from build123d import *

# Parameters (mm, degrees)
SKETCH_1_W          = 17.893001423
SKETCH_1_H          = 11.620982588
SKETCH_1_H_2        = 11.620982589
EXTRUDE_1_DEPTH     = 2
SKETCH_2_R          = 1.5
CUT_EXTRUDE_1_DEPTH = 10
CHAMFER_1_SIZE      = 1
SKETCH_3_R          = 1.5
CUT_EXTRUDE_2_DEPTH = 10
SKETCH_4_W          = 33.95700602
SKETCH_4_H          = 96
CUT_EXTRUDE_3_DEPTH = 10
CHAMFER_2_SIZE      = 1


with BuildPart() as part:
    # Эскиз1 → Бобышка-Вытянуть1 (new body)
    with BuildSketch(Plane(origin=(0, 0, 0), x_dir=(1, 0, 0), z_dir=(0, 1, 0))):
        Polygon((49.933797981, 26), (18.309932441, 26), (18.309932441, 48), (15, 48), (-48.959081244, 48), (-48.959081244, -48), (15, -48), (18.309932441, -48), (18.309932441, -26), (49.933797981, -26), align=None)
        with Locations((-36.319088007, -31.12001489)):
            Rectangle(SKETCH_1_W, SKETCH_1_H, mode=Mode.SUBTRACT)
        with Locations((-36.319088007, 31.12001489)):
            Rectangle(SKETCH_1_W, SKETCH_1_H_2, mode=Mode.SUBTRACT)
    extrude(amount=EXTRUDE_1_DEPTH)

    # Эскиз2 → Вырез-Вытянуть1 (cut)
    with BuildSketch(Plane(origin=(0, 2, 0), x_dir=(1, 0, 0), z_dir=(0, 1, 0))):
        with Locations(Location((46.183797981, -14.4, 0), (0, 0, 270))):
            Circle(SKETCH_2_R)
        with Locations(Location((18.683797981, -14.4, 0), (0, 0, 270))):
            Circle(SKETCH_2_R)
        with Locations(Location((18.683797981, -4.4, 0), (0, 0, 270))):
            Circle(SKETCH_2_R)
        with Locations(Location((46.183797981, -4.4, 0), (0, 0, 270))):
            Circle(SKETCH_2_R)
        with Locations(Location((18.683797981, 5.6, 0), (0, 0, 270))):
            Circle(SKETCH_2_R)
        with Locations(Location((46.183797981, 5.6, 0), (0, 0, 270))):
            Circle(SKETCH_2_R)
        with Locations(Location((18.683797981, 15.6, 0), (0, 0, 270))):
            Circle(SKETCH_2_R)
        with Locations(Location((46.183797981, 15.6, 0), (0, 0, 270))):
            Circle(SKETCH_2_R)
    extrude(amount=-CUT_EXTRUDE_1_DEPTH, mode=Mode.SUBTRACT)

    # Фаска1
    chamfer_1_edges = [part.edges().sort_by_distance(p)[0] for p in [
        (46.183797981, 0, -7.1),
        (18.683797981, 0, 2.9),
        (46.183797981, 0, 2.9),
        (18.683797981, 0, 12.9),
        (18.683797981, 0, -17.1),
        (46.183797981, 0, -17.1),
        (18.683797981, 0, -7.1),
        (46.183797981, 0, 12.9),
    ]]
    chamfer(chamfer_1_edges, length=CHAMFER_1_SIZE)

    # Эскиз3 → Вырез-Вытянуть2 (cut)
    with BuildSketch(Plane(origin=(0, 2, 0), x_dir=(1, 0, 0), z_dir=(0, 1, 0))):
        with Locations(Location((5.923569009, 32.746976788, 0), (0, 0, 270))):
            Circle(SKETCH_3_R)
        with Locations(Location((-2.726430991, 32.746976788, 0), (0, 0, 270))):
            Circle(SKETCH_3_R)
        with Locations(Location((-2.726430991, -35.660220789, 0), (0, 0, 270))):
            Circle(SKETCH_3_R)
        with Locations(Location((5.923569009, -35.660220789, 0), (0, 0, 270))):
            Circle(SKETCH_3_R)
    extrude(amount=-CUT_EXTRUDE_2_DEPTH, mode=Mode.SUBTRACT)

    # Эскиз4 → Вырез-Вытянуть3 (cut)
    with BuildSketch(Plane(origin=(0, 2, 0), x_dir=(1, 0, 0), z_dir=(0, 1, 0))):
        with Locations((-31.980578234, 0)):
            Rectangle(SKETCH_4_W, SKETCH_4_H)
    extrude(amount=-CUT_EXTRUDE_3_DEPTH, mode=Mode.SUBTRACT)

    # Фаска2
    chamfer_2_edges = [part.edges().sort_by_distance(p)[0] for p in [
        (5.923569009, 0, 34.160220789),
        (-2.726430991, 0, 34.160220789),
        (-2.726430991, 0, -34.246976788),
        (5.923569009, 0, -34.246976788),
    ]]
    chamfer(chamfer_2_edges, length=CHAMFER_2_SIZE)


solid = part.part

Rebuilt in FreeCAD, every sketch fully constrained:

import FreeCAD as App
import Part
import Sketcher


def edges_at(feature, points):
    """Names of the edges that pass closest to the given points."""
    edges = feature.Shape.Edges
    near = lambda p: min(range(len(edges)), key=lambda i: edges[i].distToShape(Part.Vertex(*p))[0])
    return sorted({f"Edge{near(p) + 1}" for p in points})

doc = App.newDocument("Part")
body = doc.addObject("PartDesign::Body", "Body")

# Sketch on XZ plane
sketch1 = body.newObject("Sketcher::SketchObject", "Sketch")
sketch1.AttachmentSupport = (doc.getObject("XZ_Plane"), [""])
sketch1.MapMode = "FlatFace"
sketch1.addGeometry(Part.LineSegment(App.Vector(50, -26, 0), App.Vector(18, -26, 0)), False)
sketch1.addGeometry(Part.LineSegment(App.Vector(18, -26, 0), App.Vector(18, -48, 0)), False)
sketch1.addGeometry(Part.LineSegment(App.Vector(18, -48, 0), App.Vector(-49, -48, 0)), False)
sketch1.addGeometry(Part.LineSegment(App.Vector(-49, -48, 0), App.Vector(-49, 48, 0)), False)
sketch1.addGeometry(Part.LineSegment(App.Vector(-49, 48, 0), App.Vector(18, 48, 0)), False)
sketch1.addGeometry(Part.LineSegment(App.Vector(18, 48, 0), App.Vector(18, 26, 0)), False)
sketch1.addGeometry(Part.LineSegment(App.Vector(18, 26, 0), App.Vector(50, 26, 0)), False)
sketch1.addGeometry(Part.LineSegment(App.Vector(50, 26, 0), App.Vector(50, -26, 0)), False)
sketch1.addGeometry(Part.LineSegment(App.Vector(-27, 37, 0), App.Vector(-45, 37, 0)), False)
sketch1.addGeometry(Part.LineSegment(App.Vector(-45, 37, 0), App.Vector(-45, 25, 0)), False)
sketch1.addGeometry(Part.LineSegment(App.Vector(-45, 25, 0), App.Vector(-27, 25, 0)), False)
sketch1.addGeometry(Part.LineSegment(App.Vector(-27, 25, 0), App.Vector(-27, 37, 0)), False)
sketch1.addGeometry(Part.LineSegment(App.Vector(-27, -25, 0), App.Vector(-45, -25, 0)), False)
sketch1.addGeometry(Part.LineSegment(App.Vector(-45, -25, 0), App.Vector(-45, -37, 0)), False)
sketch1.addGeometry(Part.LineSegment(App.Vector(-45, -37, 0), App.Vector(-27, -37, 0)), False)
sketch1.addGeometry(Part.LineSegment(App.Vector(-27, -37, 0), App.Vector(-27, -25, 0)), False)
sketch1.addConstraint(Sketcher.Constraint("Coincident", 0, 2, 1, 1))
sketch1.addConstraint(Sketcher.Constraint("Coincident", 1, 2, 2, 1))
sketch1.addConstraint(Sketcher.Constraint("Coincident", 2, 2, 3, 1))
sketch1.addConstraint(Sketcher.Constraint("Coincident", 3, 2, 4, 1))
sketch1.addConstraint(Sketcher.Constraint("Coincident", 4, 2, 5, 1))
sketch1.addConstraint(Sketcher.Constraint("Coincident", 5, 2, 6, 1))
sketch1.addConstraint(Sketcher.Constraint("Coincident", 6, 2, 7, 1))
sketch1.addConstraint(Sketcher.Constraint("Coincident", 7, 2, 0, 1))
sketch1.addConstraint(Sketcher.Constraint("Coincident", 8, 2, 9, 1))
sketch1.addConstraint(Sketcher.Constraint("Coincident", 9, 2, 10, 1))
sketch1.addConstraint(Sketcher.Constraint("Coincident", 10, 2, 11, 1))
sketch1.addConstraint(Sketcher.Constraint("Coincident", 11, 2, 8, 1))
sketch1.addConstraint(Sketcher.Constraint("Coincident", 12, 2, 13, 1))
sketch1.addConstraint(Sketcher.Constraint("Coincident", 13, 2, 14, 1))
sketch1.addConstraint(Sketcher.Constraint("Coincident", 14, 2, 15, 1))
sketch1.addConstraint(Sketcher.Constraint("Coincident", 15, 2, 12, 1))
sketch1.addConstraint(Sketcher.Constraint("Horizontal", 0))
sketch1.addConstraint(Sketcher.Constraint("Vertical", 1))
sketch1.addConstraint(Sketcher.Constraint("Horizontal", 2))
sketch1.addConstraint(Sketcher.Constraint("Vertical", 3))
sketch1.addConstraint(Sketcher.Constraint("Horizontal", 4))
sketch1.addConstraint(Sketcher.Constraint("Vertical", 5))
sketch1.addConstraint(Sketcher.Constraint("Horizontal", 6))
sketch1.addConstraint(Sketcher.Constraint("Vertical", 7))
sketch1.addConstraint(Sketcher.Constraint("Horizontal", 8))
sketch1.addConstraint(Sketcher.Constraint("Vertical", 9))
sketch1.addConstraint(Sketcher.Constraint("Horizontal", 10))
sketch1.addConstraint(Sketcher.Constraint("Vertical", 11))
sketch1.addConstraint(Sketcher.Constraint("Horizontal", 12))
sketch1.addConstraint(Sketcher.Constraint("Vertical", 13))
sketch1.addConstraint(Sketcher.Constraint("Horizontal", 14))
sketch1.addConstraint(Sketcher.Constraint("Vertical", 15))
sketch1.addConstraint(Sketcher.Constraint("Symmetric", 1, 2, 4, 2, -1))
sketch1.addConstraint(Sketcher.Constraint("Symmetric", 9, 2, 12, 2, -1))
sketch1.addConstraint(Sketcher.Constraint("Symmetric", 11, 2, 14, 2, -1))
sketch1.addConstraint(Sketcher.Constraint("Equal", 1, 5))
sketch1.addConstraint(Sketcher.Constraint("DistanceY", 1, 2, 1, 1, 22.0))
sketch1.addConstraint(Sketcher.Constraint("DistanceY", 3, 1, 3, 2, 96.0))
sketch1.addConstraint(Sketcher.Constraint("DistanceX", 8, 2, 8, 1, 17.893001))
sketch1.addConstraint(Sketcher.Constraint("DistanceX", 0, 2, 0, 1, 31.623866))
sketch1.addConstraint(Sketcher.Constraint("DistanceX", 2, 2, 2, 1, 67.269014))
sketch1.addConstraint(Sketcher.Constraint("DistanceY", 9, 2, 9, 1, 11.620983))
sketch1.addConstraint(Sketcher.Constraint("DistanceX", 2, 2, -1, 1, 48.959081))
sketch1.addConstraint(Sketcher.Constraint("DistanceX", 8, 2, -1, 1, 45.265589))
sketch1.addConstraint(Sketcher.Constraint("DistanceY", 12, 2, 8, 2, 62.24003))
pad1 = body.newObject("PartDesign::Pad", "Pad")
pad1.Profile = sketch1
pad1.Length = 2
pad1.Reversed = True

# Sketch on XZ plane
sketch2 = body.newObject("Sketcher::SketchObject", "Sketch001")
sketch2.AttachmentSupport = (doc.getObject("XZ_Plane"), [""])
sketch2.MapMode = "FlatFace"
sketch2.AttachmentOffset = App.Placement(App.Vector(0, 0, -2), App.Rotation())
sketch2.addGeometry(Part.Circle(App.Vector(46.2, 14.4, 0), App.Vector(0, 0, 1), 1.5), False)
sketch2.addGeometry(Part.Circle(App.Vector(18.7, 14.4, 0), App.Vector(0, 0, 1), 1.5), False)
sketch2.addGeometry(Part.Circle(App.Vector(18.7, 4.4, 0), App.Vector(0, 0, 1), 1.5), False)
sketch2.addGeometry(Part.Circle(App.Vector(46.2, 4.4, 0), App.Vector(0, 0, 1), 1.5), False)
sketch2.addGeometry(Part.Circle(App.Vector(18.7, -5.6, 0), App.Vector(0, 0, 1), 1.5), False)
sketch2.addGeometry(Part.Circle(App.Vector(46.2, -5.6, 0), App.Vector(0, 0, 1), 1.5), False)
sketch2.addGeometry(Part.Circle(App.Vector(18.7, -15.6, 0), App.Vector(0, 0, 1), 1.5), False)
sketch2.addGeometry(Part.Circle(App.Vector(46.2, -15.6, 0), App.Vector(0, 0, 1), 1.5), False)
sketch2.addConstraint(Sketcher.Constraint("Equal", 0, 1))
sketch2.addConstraint(Sketcher.Constraint("Equal", 1, 2))
sketch2.addConstraint(Sketcher.Constraint("Equal", 2, 3))
sketch2.addConstraint(Sketcher.Constraint("Equal", 3, 4))
sketch2.addConstraint(Sketcher.Constraint("Equal", 4, 5))
sketch2.addConstraint(Sketcher.Constraint("Equal", 5, 6))
sketch2.addConstraint(Sketcher.Constraint("Equal", 6, 7))
sketch2.addConstraint(Sketcher.Constraint("Horizontal", 0, 3, 1, 3))
sketch2.addConstraint(Sketcher.Constraint("Horizontal", 2, 3, 3, 3))
sketch2.addConstraint(Sketcher.Constraint("Horizontal", 4, 3, 5, 3))
sketch2.addConstraint(Sketcher.Constraint("Horizontal", 6, 3, 7, 3))
sketch2.addConstraint(Sketcher.Constraint("Vertical", 1, 3, 2, 3))
sketch2.addConstraint(Sketcher.Constraint("Vertical", 0, 3, 3, 3))
sketch2.addConstraint(Sketcher.Constraint("Vertical", 2, 3, 4, 3))
sketch2.addConstraint(Sketcher.Constraint("Vertical", 3, 3, 5, 3))
sketch2.addConstraint(Sketcher.Constraint("Vertical", 4, 3, 6, 3))
sketch2.addConstraint(Sketcher.Constraint("Vertical", 5, 3, 7, 3))
sketch2.addConstraint(Sketcher.Constraint("Diameter", 0, 3.0))
sketch2.addConstraint(Sketcher.Constraint("DistanceY", 2, 3, 1, 3, 10.0))
sketch2.addConstraint(Sketcher.Constraint("DistanceY", 4, 3, 2, 3, 10.0))
sketch2.addConstraint(Sketcher.Constraint("DistanceY", 6, 3, 4, 3, 10.0))
sketch2.addConstraint(Sketcher.Constraint("DistanceY", -1, 1, 0, 3, 14.4))
sketch2.addConstraint(Sketcher.Constraint("DistanceX", 1, 3, 0, 3, 27.5))
sketch2.addConstraint(Sketcher.Constraint("DistanceX", -1, 1, 0, 3, 46.183798))
pocket1 = body.newObject("PartDesign::Pocket", "Pocket")
pocket1.Profile = sketch2
pocket1.Length = 10
pocket1.Reversed = True
doc.recompute()

chamfer = body.newObject("PartDesign::Chamfer", "Chamfer")
chamfer.Base = (pocket1, edges_at(pocket1, [
    (46.184, 0, -7.1),
    (18.684, 0, 2.9),
    (46.184, 0, 2.9),
    (18.684, 0, 12.9),
    (18.684, 0, -17.1),
    (46.184, 0, -17.1),
    (18.684, 0, -7.1),
    (46.184, 0, 12.9),
]))
chamfer.Size = 1

# Sketch on XZ plane
sketch3 = body.newObject("Sketcher::SketchObject", "Sketch002")
sketch3.AttachmentSupport = (doc.getObject("XZ_Plane"), [""])
sketch3.MapMode = "FlatFace"
sketch3.AttachmentOffset = App.Placement(App.Vector(0, 0, -2), App.Rotation())
sketch3.addGeometry(Part.Circle(App.Vector(5.9, -32.7, 0), App.Vector(0, 0, 1), 1.5), False)
sketch3.addGeometry(Part.Circle(App.Vector(-2.7, -32.7, 0), App.Vector(0, 0, 1), 1.5), False)
sketch3.addGeometry(Part.Circle(App.Vector(-2.7, 35.7, 0), App.Vector(0, 0, 1), 1.5), False)
sketch3.addGeometry(Part.Circle(App.Vector(5.9, 35.7, 0), App.Vector(0, 0, 1), 1.5), False)
sketch3.addConstraint(Sketcher.Constraint("Equal", 0, 1))
sketch3.addConstraint(Sketcher.Constraint("Equal", 1, 2))
sketch3.addConstraint(Sketcher.Constraint("Equal", 2, 3))
sketch3.addConstraint(Sketcher.Constraint("Horizontal", 0, 3, 1, 3))
sketch3.addConstraint(Sketcher.Constraint("Horizontal", 2, 3, 3, 3))
sketch3.addConstraint(Sketcher.Constraint("Vertical", 1, 3, 2, 3))
sketch3.addConstraint(Sketcher.Constraint("Vertical", 0, 3, 3, 3))
sketch3.addConstraint(Sketcher.Constraint("Diameter", 0, 3.0))
sketch3.addConstraint(Sketcher.Constraint("DistanceX", 1, 3, 0, 3, 8.65))
sketch3.addConstraint(Sketcher.Constraint("DistanceX", -1, 1, 0, 3, 5.923569))
sketch3.addConstraint(Sketcher.Constraint("DistanceY", -1, 1, 2, 3, 35.660221))
sketch3.addConstraint(Sketcher.Constraint("DistanceY", 0, 3, -1, 1, 32.746977))
pocket2 = body.newObject("PartDesign::Pocket", "Pocket001")
pocket2.Profile = sketch3
pocket2.Length = 10
pocket2.Reversed = True

# Sketch on XZ plane
sketch4 = body.newObject("Sketcher::SketchObject", "Sketch003")
sketch4.AttachmentSupport = (doc.getObject("XZ_Plane"), [""])
sketch4.MapMode = "FlatFace"
sketch4.AttachmentOffset = App.Placement(App.Vector(0, 0, -2), App.Rotation())
sketch4.addGeometry(Part.LineSegment(App.Vector(-49, -48, 0), App.Vector(-49, 48, 0)), False)
sketch4.addGeometry(Part.LineSegment(App.Vector(-49, 48, 0), App.Vector(-15, 48, 0)), False)
sketch4.addGeometry(Part.LineSegment(App.Vector(-15, 48, 0), App.Vector(-15, -48, 0)), False)
sketch4.addGeometry(Part.LineSegment(App.Vector(-15, -48, 0), App.Vector(-49, -48, 0)), False)
sketch4.addConstraint(Sketcher.Constraint("Coincident", 0, 2, 1, 1))
sketch4.addConstraint(Sketcher.Constraint("Coincident", 1, 2, 2, 1))
sketch4.addConstraint(Sketcher.Constraint("Coincident", 2, 2, 3, 1))
sketch4.addConstraint(Sketcher.Constraint("Coincident", 3, 2, 0, 1))
sketch4.addConstraint(Sketcher.Constraint("Vertical", 0))
sketch4.addConstraint(Sketcher.Constraint("Horizontal", 1))
sketch4.addConstraint(Sketcher.Constraint("Vertical", 2))
sketch4.addConstraint(Sketcher.Constraint("Horizontal", 3))
sketch4.addConstraint(Sketcher.Constraint("DistanceY", 0, 1, 0, 2, 96.0))
sketch4.addConstraint(Sketcher.Constraint("DistanceY", -1, 1, 0, 2, 48.0))
sketch4.addConstraint(Sketcher.Constraint("DistanceX", 1, 1, 1, 2, 33.957006))
sketch4.addConstraint(Sketcher.Constraint("DistanceX", 0, 2, -1, 1, 48.959081))
pocket3 = body.newObject("PartDesign::Pocket", "Pocket002")
pocket3.Profile = sketch4
pocket3.Length = 10
pocket3.Reversed = True
doc.recompute()

chamfer2 = body.newObject("PartDesign::Chamfer", "Chamfer001")
chamfer2.Base = (pocket3, edges_at(pocket3, [
    (5.924, 0, 34.16),
    (-2.726, 0, 34.16),
    (-2.726, 0, -34.247),
    (5.924, 0, -34.247),
]))
chamfer2.Size = 1

doc.recompute()
